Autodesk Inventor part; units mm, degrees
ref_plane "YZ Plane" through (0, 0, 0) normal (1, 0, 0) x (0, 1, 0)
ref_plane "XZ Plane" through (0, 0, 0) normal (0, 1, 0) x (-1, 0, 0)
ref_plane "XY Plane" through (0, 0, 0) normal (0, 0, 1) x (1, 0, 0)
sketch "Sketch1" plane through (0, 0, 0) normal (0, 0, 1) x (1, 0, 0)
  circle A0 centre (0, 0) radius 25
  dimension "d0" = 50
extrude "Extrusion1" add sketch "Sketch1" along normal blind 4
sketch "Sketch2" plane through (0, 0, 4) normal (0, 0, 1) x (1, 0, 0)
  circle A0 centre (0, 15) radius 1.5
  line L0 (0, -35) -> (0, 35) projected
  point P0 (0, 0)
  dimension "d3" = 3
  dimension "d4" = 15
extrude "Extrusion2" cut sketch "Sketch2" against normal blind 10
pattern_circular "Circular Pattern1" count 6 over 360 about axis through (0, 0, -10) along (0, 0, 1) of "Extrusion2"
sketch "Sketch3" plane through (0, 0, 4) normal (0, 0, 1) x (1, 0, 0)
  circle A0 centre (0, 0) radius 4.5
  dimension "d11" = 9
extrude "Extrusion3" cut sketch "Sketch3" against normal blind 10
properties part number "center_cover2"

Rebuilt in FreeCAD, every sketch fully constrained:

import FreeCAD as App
import Part
import Sketcher

V = App.Vector

doc = App.newDocument("Part")
params = doc.addObject("Spreadsheet::Sheet", "Params")
for row, (alias, value) in enumerate([
    ("sketch1_diameter", "50 mm"),
    ("pad1_length", "4 mm"),
    ("sketch2_diameter", "3 mm"),
    ("pocket1_length", "10 mm"),
    ("sketch3_diameter", "9 mm"),
    ("pocket2_length", "10 mm"),
], start=1):
    params.set(f"A{row}", alias)
    params.set(f"B{row}", "=" + value)
    params.setAlias(f"B{row}", alias)

body = doc.addObject("PartDesign::Body", "Body")

# Sketch on XY plane
sketch1 = body.newObject("Sketcher::SketchObject", "Sketch")
sketch1.AttachmentSupport = (doc.getObject("XY_Plane"), [""])
sketch1.MapMode = "FlatFace"
sketch1.addGeometry(Part.Circle(V(0, 0, 0), V(0, 0, 1), 25), False)
sketch1.addConstraint([
    Sketcher.Constraint("Coincident", 0, 3, -1, 1),
    Sketcher.Constraint("Diameter", 0, 50.0),
])
sketch1.setExpression("Constraints[1]", "Params.sketch1_diameter")
pad1 = body.newObject("PartDesign::Pad", "Pad")
pad1.Profile = sketch1
pad1.setExpression("Length", "Params.pad1_length")

# Sketch on XY plane
sketch2 = body.newObject("Sketcher::SketchObject", "Sketch001")
sketch2.AttachmentSupport = (doc.getObject("XY_Plane"), [""])
sketch2.MapMode = "FlatFace"
sketch2.AttachmentOffset = App.Placement(V(0, 0, 4), App.Rotation())
sketch2.addGeometry(Part.Circle(V(0, 15, 0), V(0, 0, 1), 1.5), False)
sketch2.addConstraint([
    Sketcher.Constraint("PointOnObject", 0, 3, -2),
    Sketcher.Constraint("Diameter", 0, 3.0),
    Sketcher.Constraint("DistanceY", -1, 1, 0, 3, 15.0),
])
sketch2.setExpression("Constraints[1]", "Params.sketch2_diameter")
pocket1 = body.newObject("PartDesign::Pocket", "Pocket")
pocket1.Profile = sketch2
pocket1.setExpression("Length", "Params.pocket1_length")
doc.recompute()

polarpattern = body.newObject("PartDesign::PolarPattern", "PolarPattern")
polarpattern.Originals = [pocket1]
polarpattern.Axis = (doc.getObject("Z_Axis"), [""])
polarpattern.Angle = 360
polarpattern.Occurrences = 6
body.Tip = polarpattern

# Sketch on XY plane
sketch3 = body.newObject("Sketcher::SketchObject", "Sketch002")
sketch3.AttachmentSupport = (doc.getObject("XY_Plane"), [""])
sketch3.MapMode = "FlatFace"
sketch3.AttachmentOffset = App.Placement(V(0, 0, 4), App.Rotation())
sketch3.addGeometry(Part.Circle(V(0, 0, 0), V(0, 0, 1), 4.5), False)
sketch3.addConstraint([
    Sketcher.Constraint("Coincident", 0, 3, -1, 1),
    Sketcher.Constraint("Diameter", 0, 9.0),
])
sketch3.setExpression("Constraints[1]", "Params.sketch3_diameter")
pocket2 = body.newObject("PartDesign::Pocket", "Pocket001")
pocket2.Profile = sketch3
pocket2.setExpression("Length", "Params.pocket2_length")

doc.recompute()
